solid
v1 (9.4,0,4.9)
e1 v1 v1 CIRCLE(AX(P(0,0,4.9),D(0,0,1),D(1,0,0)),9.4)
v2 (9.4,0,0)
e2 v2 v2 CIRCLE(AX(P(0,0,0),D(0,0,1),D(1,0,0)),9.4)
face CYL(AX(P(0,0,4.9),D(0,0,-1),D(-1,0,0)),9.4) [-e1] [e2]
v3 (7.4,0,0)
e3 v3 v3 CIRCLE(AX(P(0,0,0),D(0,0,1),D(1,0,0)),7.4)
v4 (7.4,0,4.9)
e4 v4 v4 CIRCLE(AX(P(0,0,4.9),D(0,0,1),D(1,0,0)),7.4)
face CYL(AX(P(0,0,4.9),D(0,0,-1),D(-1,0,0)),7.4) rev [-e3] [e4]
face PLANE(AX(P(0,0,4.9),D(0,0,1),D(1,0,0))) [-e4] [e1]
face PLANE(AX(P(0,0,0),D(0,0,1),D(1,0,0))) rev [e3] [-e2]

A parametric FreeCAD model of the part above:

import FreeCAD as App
import Part
import Sketcher
Q = App.Units.Quantity

doc = App.newDocument("Part")
body = doc.addObject("PartDesign::Body", "Body")

# Sketch on XY plane
sketch1 = body.newObject("Sketcher::SketchObject", "Sketch")
sketch1.AttachmentSupport = (doc.getObject("XY_Plane"), [""])
sketch1.MapMode = "FlatFace"
sketch1.addGeometry(Part.Circle(App.Vector(0, 0, 0), App.Vector(0, 0, 1), 9.4), False)
sketch1.addGeometry(Part.Circle(App.Vector(0, 0, 0), App.Vector(0, 0, 1), 7.4), False)
sketch1.addConstraint(Sketcher.Constraint("Coincident", 0, 3, -1, 1))
sketch1.addConstraint(Sketcher.Constraint("Coincident", 1, 3, -1, 1))
sketch1.addConstraint(Sketcher.Constraint("Diameter", 0, Q("18.8 mm")))
sketch1.addConstraint(Sketcher.Constraint("Diameter", 1, Q("14.8 mm")))
pad1 = body.newObject("PartDesign::Pad", "Pad")
pad1.Profile = sketch1
pad1.Length = 4.9

doc.recompute()
